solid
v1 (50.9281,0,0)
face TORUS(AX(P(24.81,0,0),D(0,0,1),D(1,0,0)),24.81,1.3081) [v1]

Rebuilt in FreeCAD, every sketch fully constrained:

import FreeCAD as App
import Part
import Sketcher
Q = App.Units.Quantity

doc = App.newDocument("Part")
params = doc.addObject("Spreadsheet::Sheet", "Params")
for row, (alias, value) in enumerate([
    ("sketch1_diameter", "0.103 in"),
    ("revolution_angle", "360 deg"),
], start=1):
    params.set(f"A{row}", alias)
    params.set(f"B{row}", "=" + value)
    params.setAlias(f"B{row}", alias)

body = doc.addObject("PartDesign::Body", "Body")

sketch1 = body.newObject("Sketcher::SketchObject", "Sketch")
sketch1.AttachmentSupport = (doc.getObject("XZ_Plane"), [""])
sketch1.MapMode = "FlatFace"
sketch1.addGeometry(Part.Circle(App.Vector(0, 0, 0), App.Vector(0, 0, 1), 1.3), False)
sketch1.addGeometry(Part.LineSegment(App.Vector(24.8, 0, 0), App.Vector(24.8, -10, 0)), True)
sketch1.addConstraint(Sketcher.Constraint("Vertical", 1))
sketch1.addConstraint(Sketcher.Constraint("Coincident", 0, 3, -1, 1))
sketch1.addConstraint(Sketcher.Constraint("PointOnObject", 1, 1, -1))
sketch1.addConstraint(Sketcher.Constraint("Diameter", 0, Q("0.103 in")))
sketch1.addConstraint(Sketcher.Constraint("DistanceY", 1, 2, 1, 1, Q("10 mm")))
sketch1.addConstraint(Sketcher.Constraint("DistanceX", -1, 1, 1, 1, Q("24.81 mm")))
sketch1.setExpression("Constraints[3]", "Params.sketch1_diameter")
revolution = body.newObject("PartDesign::Revolution", "Revolution")
revolution.Profile = sketch1
revolution.ReferenceAxis = (sketch1, ["Axis0"])
revolution.setExpression("Angle", "Params.revolution_angle")

doc.recompute()
